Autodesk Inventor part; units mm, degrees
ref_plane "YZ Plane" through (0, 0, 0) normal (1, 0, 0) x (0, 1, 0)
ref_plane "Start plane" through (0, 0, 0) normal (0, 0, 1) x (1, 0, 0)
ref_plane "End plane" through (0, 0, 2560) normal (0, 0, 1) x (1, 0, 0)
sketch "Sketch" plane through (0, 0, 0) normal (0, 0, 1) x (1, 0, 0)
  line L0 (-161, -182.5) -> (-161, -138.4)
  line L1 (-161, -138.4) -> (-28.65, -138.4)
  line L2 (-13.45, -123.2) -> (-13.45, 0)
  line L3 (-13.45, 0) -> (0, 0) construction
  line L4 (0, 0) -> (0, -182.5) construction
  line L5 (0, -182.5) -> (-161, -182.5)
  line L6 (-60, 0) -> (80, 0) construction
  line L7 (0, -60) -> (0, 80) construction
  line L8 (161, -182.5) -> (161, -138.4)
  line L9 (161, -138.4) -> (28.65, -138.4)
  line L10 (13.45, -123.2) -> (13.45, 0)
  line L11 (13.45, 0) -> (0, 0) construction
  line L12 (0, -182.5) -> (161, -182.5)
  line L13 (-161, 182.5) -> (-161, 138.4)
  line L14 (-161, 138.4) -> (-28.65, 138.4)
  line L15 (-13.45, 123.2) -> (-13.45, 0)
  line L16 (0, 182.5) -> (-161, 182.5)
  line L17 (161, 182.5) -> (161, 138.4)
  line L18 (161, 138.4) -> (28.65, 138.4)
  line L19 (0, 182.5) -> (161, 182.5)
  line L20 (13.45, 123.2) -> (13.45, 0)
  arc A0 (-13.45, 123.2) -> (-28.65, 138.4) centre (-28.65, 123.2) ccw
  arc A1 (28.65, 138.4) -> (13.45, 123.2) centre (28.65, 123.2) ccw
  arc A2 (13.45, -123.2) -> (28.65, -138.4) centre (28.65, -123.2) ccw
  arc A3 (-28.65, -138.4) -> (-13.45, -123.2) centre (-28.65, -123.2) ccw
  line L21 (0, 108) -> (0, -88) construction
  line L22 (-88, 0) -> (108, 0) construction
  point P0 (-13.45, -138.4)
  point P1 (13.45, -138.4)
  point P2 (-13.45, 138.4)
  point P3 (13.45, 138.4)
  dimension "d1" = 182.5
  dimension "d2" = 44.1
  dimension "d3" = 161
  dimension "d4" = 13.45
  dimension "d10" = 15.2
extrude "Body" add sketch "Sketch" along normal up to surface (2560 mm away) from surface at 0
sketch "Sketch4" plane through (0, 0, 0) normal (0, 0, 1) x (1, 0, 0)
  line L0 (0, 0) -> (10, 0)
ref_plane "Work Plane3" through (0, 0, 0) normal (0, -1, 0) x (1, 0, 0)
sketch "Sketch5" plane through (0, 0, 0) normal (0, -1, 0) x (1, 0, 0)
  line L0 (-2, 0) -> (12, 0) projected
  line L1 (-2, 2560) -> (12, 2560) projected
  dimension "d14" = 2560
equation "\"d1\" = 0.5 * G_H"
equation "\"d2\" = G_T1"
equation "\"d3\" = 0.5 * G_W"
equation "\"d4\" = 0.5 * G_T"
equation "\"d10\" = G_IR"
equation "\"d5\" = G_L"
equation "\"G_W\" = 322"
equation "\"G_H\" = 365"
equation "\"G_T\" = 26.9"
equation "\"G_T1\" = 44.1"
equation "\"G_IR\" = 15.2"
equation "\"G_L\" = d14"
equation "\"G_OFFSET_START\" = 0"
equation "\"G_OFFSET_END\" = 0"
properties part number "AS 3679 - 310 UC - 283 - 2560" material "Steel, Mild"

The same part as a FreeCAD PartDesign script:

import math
import FreeCAD as App
import Part
import Sketcher
from FreeCAD import Vector
Q = App.Units.Quantity

doc = App.newDocument("Part")
body = doc.addObject("PartDesign::Body", "Body")

sketch1 = body.newObject("Sketcher::SketchObject", "Sketch")
sketch1.AttachmentSupport = (doc.getObject("XY_Plane"), [""])
sketch1.MapMode = "FlatFace"
sketch1.addGeometry([
    Part.LineSegment(Vector(-161, -138, 0), Vector(-161, -182, 0)),
    Part.LineSegment(Vector(-161, -182, 0), Vector(161, -182, 0)),
    Part.LineSegment(Vector(161, -182, 0), Vector(161, -138, 0)),
    Part.LineSegment(Vector(161, -138, 0), Vector(29, -138, 0)),
    Part.ArcOfCircle(Part.Circle(Vector(29, -123, 0), Vector(0, 0, 1), 15), math.radians(180), math.radians(270)),
    Part.LineSegment(Vector(13, -123, 0), Vector(13, 123, 0)),
    Part.ArcOfCircle(Part.Circle(Vector(29, 123, 0), Vector(0, 0, 1), 15), math.radians(90), math.radians(180)),
    Part.LineSegment(Vector(29, 138, 0), Vector(161, 138, 0)),
    Part.LineSegment(Vector(161, 138, 0), Vector(161, 182, 0)),
    Part.LineSegment(Vector(161, 182, 0), Vector(-161, 182, 0)),
    Part.LineSegment(Vector(-161, 182, 0), Vector(-161, 138, 0)),
    Part.LineSegment(Vector(-161, 138, 0), Vector(-29, 138, 0)),
    Part.ArcOfCircle(Part.Circle(Vector(-29, 123, 0), Vector(0, 0, 1), 15), math.radians(0), math.radians(90)),
    Part.LineSegment(Vector(-13, 123, 0), Vector(-13, -123, 0)),
    Part.ArcOfCircle(Part.Circle(Vector(-29, -123, 0), Vector(0, 0, 1), 15), math.radians(-90), math.radians(0)),
    Part.LineSegment(Vector(-29, -138, 0), Vector(-161, -138, 0)),
], False)
sketch1.addConstraint([
    Sketcher.Constraint("Coincident", 0, 2, 1, 1),
    Sketcher.Constraint("Coincident", 1, 2, 2, 1),
    Sketcher.Constraint("Coincident", 2, 2, 3, 1),
    Sketcher.Constraint("Tangent", 3, 2, 4, 2),
    Sketcher.Constraint("Tangent", 4, 1, 5, 1),
    Sketcher.Constraint("Tangent", 5, 2, 6, 2),
    Sketcher.Constraint("Tangent", 6, 1, 7, 1),
    Sketcher.Constraint("Coincident", 7, 2, 8, 1),
    Sketcher.Constraint("Coincident", 8, 2, 9, 1),
    Sketcher.Constraint("Coincident", 9, 2, 10, 1),
    Sketcher.Constraint("Coincident", 10, 2, 11, 1),
    Sketcher.Constraint("Tangent", 11, 2, 12, 2),
    Sketcher.Constraint("Tangent", 12, 1, 13, 1),
    Sketcher.Constraint("Tangent", 13, 2, 14, 2),
    Sketcher.Constraint("Tangent", 14, 1, 15, 1),
    Sketcher.Constraint("Coincident", 15, 2, 0, 1),
    Sketcher.Constraint("Vertical", 0),
    Sketcher.Constraint("Horizontal", 1),
    Sketcher.Constraint("Vertical", 2),
    Sketcher.Constraint("Horizontal", 3),
    Sketcher.Constraint("Vertical", 5),
    Sketcher.Constraint("Horizontal", 7),
    Sketcher.Constraint("Vertical", 8),
    Sketcher.Constraint("Horizontal", 9),
    Sketcher.Constraint("Vertical", 10),
    Sketcher.Constraint("Horizontal", 11),
    Sketcher.Constraint("Vertical", 13),
    Sketcher.Constraint("Horizontal", 15),
    Sketcher.Constraint("Equal", 4, 6),
    Sketcher.Constraint("Equal", 6, 12),
    Sketcher.Constraint("Equal", 12, 14),
    Sketcher.Constraint("Symmetric", 4, 3, 12, 3, -1, 1),
    Sketcher.Constraint("Symmetric", 0, 2, 8, 2, -1, 1),
    Sketcher.Constraint("Symmetric", 7, 2, 10, 2, -2),
    Sketcher.Constraint("Symmetric", 2, 2, 15, 2, -2),
    Sketcher.Constraint("Radius", 4, Q("15.2 mm")),
    Sketcher.Constraint("DistanceY", 0, 2, 0, 1, Q("44.1 mm")),
    Sketcher.Constraint("DistanceX", 0, 2, -1, 1, Q("161 mm")),
    Sketcher.Constraint("DistanceY", 0, 2, -1, 1, Q("182.5 mm")),
    Sketcher.Constraint("DistanceX", -1, 1, 4, 1, Q("13.45 mm")),
])
pad1 = body.newObject("PartDesign::Pad", "Pad")
pad1.Profile = sketch1
pad1.Length = 2560

doc.recompute()
